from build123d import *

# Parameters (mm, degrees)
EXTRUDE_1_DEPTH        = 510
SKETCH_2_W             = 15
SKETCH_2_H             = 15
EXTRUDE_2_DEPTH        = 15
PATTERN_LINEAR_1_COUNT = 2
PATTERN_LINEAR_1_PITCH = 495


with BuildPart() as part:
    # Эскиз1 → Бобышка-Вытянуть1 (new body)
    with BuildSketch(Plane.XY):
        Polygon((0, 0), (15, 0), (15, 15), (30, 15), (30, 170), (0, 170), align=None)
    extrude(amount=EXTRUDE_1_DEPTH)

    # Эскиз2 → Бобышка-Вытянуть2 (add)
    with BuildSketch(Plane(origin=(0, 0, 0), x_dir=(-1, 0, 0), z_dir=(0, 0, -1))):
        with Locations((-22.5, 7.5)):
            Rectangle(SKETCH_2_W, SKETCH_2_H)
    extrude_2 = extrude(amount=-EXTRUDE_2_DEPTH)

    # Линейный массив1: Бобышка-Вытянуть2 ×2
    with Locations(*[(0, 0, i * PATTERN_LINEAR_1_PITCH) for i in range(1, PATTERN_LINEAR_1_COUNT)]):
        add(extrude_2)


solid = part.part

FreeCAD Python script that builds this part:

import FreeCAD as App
import Part
import Sketcher
Q = App.Units.Quantity

doc = App.newDocument("Part")
body = doc.addObject("PartDesign::Body", "Body")

sketch1 = doc.addObject("Sketcher::SketchObject", "Sketch")
body.addObject(sketch1)
sketch1.AttachmentSupport = (doc.XY_Plane, [""])
sketch1.MapMode = "FlatFace"
sketch1.addGeometry([
    Part.LineSegment(App.Vector(0, 0, 0), App.Vector(15, 0, 0)),
    Part.LineSegment(App.Vector(15, 0, 0), App.Vector(15, 15, 0)),
    Part.LineSegment(App.Vector(15, 15, 0), App.Vector(30, 15, 0)),
    Part.LineSegment(App.Vector(30, 15, 0), App.Vector(30, 170, 0)),
    Part.LineSegment(App.Vector(30, 170, 0), App.Vector(0, 170, 0)),
    Part.LineSegment(App.Vector(0, 170, 0), App.Vector(0, 0, 0)),
], False)
sketch1.addConstraint([
    Sketcher.Constraint("Coincident", 0, 2, 1, 1),
    Sketcher.Constraint("Coincident", 1, 2, 2, 1),
    Sketcher.Constraint("Coincident", 2, 2, 3, 1),
    Sketcher.Constraint("Coincident", 3, 2, 4, 1),
    Sketcher.Constraint("Coincident", 4, 2, 5, 1),
    Sketcher.Constraint("Coincident", 5, 2, 0, 1),
    Sketcher.Constraint("Horizontal", 0),
    Sketcher.Constraint("Vertical", 1),
    Sketcher.Constraint("Horizontal", 2),
    Sketcher.Constraint("Vertical", 3),
    Sketcher.Constraint("Horizontal", 4),
    Sketcher.Constraint("Vertical", 5),
    Sketcher.Constraint("Coincident", 5, 2, -1, 1),
    Sketcher.Constraint("Equal", 0, 2),
    Sketcher.Constraint("Equal", 2, 1),
    Sketcher.Constraint("DistanceX", 0, 1, 0, 2, Q("15 mm")),
    Sketcher.Constraint("DistanceY", 3, 1, 3, 2, Q("155 mm")),
])
pad1 = doc.addObject("PartDesign::Pad", "Pad")
body.addObject(pad1)
pad1.Profile = sketch1
pad1.Length = 510

sketch2 = doc.addObject("Sketcher::SketchObject", "Sketch001")
body.addObject(sketch2)
sketch2.AttachmentSupport = (doc.XY_Plane, [""])
sketch2.MapMode = "FlatFace"
sketch2.addGeometry([
    Part.LineSegment(App.Vector(30, 15, 0), App.Vector(30, 0, 0)),
    Part.LineSegment(App.Vector(30, 0, 0), App.Vector(15, 0, 0)),
    Part.LineSegment(App.Vector(15, 0, 0), App.Vector(15, 15, 0)),
    Part.LineSegment(App.Vector(15, 15, 0), App.Vector(30, 15, 0)),
], False)
sketch2.addConstraint([
    Sketcher.Constraint("Coincident", 0, 2, 1, 1),
    Sketcher.Constraint("Coincident", 1, 2, 2, 1),
    Sketcher.Constraint("Coincident", 2, 2, 3, 1),
    Sketcher.Constraint("Coincident", 3, 2, 0, 1),
    Sketcher.Constraint("Vertical", 0),
    Sketcher.Constraint("Horizontal", 1),
    Sketcher.Constraint("Vertical", 2),
    Sketcher.Constraint("Horizontal", 3),
    Sketcher.Constraint("PointOnObject", 0, 2, -1),
    Sketcher.Constraint("Equal", 3, 0),
    Sketcher.Constraint("DistanceX", 1, 2, 1, 1, Q("15 mm")),
    Sketcher.Constraint("DistanceX", -1, 1, 0, 2, Q("30 mm")),
])
pad2 = doc.addObject("PartDesign::Pad", "Pad001")
body.addObject(pad2)
pad2.Profile = sketch2
pad2.Length = 15
doc.recompute()

linearpattern = doc.addObject("PartDesign::LinearPattern", "LinearPattern")
body.addObject(linearpattern)
linearpattern.Originals = [pad2]
linearpattern.Direction = (doc.Z_Axis, [""])
linearpattern.Mode = "offset"
linearpattern.Offset = 495
linearpattern.Occurrences = 2
body.Tip = linearpattern

doc.recompute()
